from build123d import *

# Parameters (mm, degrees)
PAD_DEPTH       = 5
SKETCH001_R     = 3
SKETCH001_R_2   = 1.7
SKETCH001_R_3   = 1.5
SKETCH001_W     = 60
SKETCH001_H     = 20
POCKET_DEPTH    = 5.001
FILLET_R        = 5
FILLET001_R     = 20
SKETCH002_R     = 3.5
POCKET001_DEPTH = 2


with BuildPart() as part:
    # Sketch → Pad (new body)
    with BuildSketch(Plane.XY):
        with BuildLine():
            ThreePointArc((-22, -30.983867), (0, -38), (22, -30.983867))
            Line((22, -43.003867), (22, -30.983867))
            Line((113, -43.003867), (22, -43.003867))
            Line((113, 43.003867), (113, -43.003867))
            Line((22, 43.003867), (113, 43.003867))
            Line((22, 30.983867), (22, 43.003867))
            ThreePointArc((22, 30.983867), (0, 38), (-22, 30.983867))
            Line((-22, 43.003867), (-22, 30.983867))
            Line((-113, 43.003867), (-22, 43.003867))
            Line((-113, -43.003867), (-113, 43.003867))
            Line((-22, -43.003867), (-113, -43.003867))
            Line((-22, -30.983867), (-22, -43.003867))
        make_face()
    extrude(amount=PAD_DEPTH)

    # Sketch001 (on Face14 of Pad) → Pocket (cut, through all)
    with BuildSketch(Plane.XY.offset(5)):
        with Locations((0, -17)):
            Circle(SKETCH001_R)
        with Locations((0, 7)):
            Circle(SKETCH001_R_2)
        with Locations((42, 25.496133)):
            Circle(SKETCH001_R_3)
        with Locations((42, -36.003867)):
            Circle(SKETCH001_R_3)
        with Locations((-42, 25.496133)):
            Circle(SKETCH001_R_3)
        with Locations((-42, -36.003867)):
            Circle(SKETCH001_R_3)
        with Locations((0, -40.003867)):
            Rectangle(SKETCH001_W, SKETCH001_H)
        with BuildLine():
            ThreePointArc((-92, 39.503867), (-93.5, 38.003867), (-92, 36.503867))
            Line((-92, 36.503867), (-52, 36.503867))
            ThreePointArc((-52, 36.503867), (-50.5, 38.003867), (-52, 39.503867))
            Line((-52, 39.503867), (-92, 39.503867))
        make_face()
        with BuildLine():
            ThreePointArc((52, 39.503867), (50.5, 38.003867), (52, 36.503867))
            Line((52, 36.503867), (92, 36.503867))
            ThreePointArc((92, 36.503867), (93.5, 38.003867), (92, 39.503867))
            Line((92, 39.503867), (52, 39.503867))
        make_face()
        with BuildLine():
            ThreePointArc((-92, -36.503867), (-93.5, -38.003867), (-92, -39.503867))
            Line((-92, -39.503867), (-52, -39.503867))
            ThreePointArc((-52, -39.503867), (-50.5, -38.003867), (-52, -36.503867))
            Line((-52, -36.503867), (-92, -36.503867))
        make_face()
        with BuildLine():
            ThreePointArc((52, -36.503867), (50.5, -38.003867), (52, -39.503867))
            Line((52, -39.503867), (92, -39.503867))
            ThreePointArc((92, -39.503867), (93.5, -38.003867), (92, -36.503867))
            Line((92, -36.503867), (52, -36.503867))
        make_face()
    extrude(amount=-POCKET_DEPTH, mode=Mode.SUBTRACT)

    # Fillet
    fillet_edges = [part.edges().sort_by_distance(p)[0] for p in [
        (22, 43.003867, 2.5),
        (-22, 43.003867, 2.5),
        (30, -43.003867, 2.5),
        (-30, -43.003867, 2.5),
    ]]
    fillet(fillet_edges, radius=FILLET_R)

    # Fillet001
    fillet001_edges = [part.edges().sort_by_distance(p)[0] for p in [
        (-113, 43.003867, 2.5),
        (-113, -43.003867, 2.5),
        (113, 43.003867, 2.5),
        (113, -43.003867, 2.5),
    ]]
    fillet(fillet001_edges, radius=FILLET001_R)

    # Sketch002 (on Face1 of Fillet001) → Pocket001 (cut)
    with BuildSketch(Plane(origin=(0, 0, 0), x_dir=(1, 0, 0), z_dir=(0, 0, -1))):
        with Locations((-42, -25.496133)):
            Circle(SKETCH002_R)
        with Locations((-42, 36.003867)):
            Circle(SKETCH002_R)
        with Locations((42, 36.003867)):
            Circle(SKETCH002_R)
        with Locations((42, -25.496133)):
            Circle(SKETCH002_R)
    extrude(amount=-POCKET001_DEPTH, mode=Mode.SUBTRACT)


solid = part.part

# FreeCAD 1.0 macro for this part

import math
import FreeCAD as App
import Part
import Sketcher


def edges_at(feature, points):
    """Names of the edges that pass closest to the given points."""
    edges = feature.Shape.Edges
    near = lambda p: min(range(len(edges)), key=lambda i: edges[i].distToShape(Part.Vertex(*p))[0])
    return sorted({f"Edge{near(p) + 1}" for p in points})


def add_polygon(sketch, points):
    """Adds a closed chain of lines whose ends are joined by coincident constraints."""
    first, n = sketch.GeometryCount, len(points)
    for a, b in zip(points, points[1:] + points[:1]):
        sketch.addGeometry(Part.LineSegment(App.Vector(*a, 0), App.Vector(*b, 0)), False)
    for i in range(n):
        sketch.addConstraint(Sketcher.Constraint("Coincident", first + i, 2, first + (i + 1) % n, 1))

doc = App.newDocument("Part")
body = doc.addObject("PartDesign::Body", "Body")

sketch1 = body.newObject("Sketcher::SketchObject", "Sketch")
sketch1.AttachmentSupport = (doc.getObject("XY_Plane"), [""])
sketch1.MapMode = "FlatFace"
sketch1.addGeometry([
    Part.ArcOfCircle(Part.Circle(App.Vector(0, 0.000001, 0), App.Vector(0, 0, 1), 38.000001), math.radians(-125.376539), math.radians(-54.623461)),
    Part.LineSegment(App.Vector(22, -30.983867, 0), App.Vector(22, -43.003867, 0)),
    Part.LineSegment(App.Vector(22, -43.003867, 0), App.Vector(113, -43.003867, 0)),
    Part.LineSegment(App.Vector(113, -43.003867, 0), App.Vector(113, 43.003867, 0)),
    Part.LineSegment(App.Vector(113, 43.003867, 0), App.Vector(22, 43.003867, 0)),
    Part.LineSegment(App.Vector(22, 43.003867, 0), App.Vector(22, 30.983867, 0)),
    Part.ArcOfCircle(Part.Circle(App.Vector(0, -0.000001, 0), App.Vector(0, 0, 1), 38.000001), math.radians(54.623461), math.radians(125.376539)),
    Part.LineSegment(App.Vector(-22, 30.983867, 0), App.Vector(-22, 43.003867, 0)),
    Part.LineSegment(App.Vector(-22, 43.003867, 0), App.Vector(-113, 43.003867, 0)),
    Part.LineSegment(App.Vector(-113, 43.003867, 0), App.Vector(-113, -43.003867, 0)),
    Part.LineSegment(App.Vector(-113, -43.003867, 0), App.Vector(-22, -43.003867, 0)),
    Part.LineSegment(App.Vector(-22, -43.003867, 0), App.Vector(-22, -30.983867, 0)),
], False)
sketch1.addConstraint([
    Sketcher.Constraint("Coincident", 0, 2, 1, 1),
    Sketcher.Constraint("Coincident", 1, 2, 2, 1),
    Sketcher.Constraint("Coincident", 2, 2, 3, 1),
    Sketcher.Constraint("Coincident", 3, 2, 4, 1),
    Sketcher.Constraint("Coincident", 4, 2, 5, 1),
    Sketcher.Constraint("Coincident", 5, 2, 6, 1),
    Sketcher.Constraint("Coincident", 6, 2, 7, 1),
    Sketcher.Constraint("Coincident", 7, 2, 8, 1),
    Sketcher.Constraint("Coincident", 8, 2, 9, 1),
    Sketcher.Constraint("Coincident", 9, 2, 10, 1),
    Sketcher.Constraint("Coincident", 10, 2, 11, 1),
    Sketcher.Constraint("Coincident", 11, 2, 0, 1),
    Sketcher.Constraint("Vertical", 1),
    Sketcher.Constraint("Horizontal", 2),
    Sketcher.Constraint("Vertical", 3),
    Sketcher.Constraint("Horizontal", 4),
    Sketcher.Constraint("Vertical", 5),
    Sketcher.Constraint("Vertical", 7),
    Sketcher.Constraint("Horizontal", 8),
    Sketcher.Constraint("Vertical", 9),
    Sketcher.Constraint("Horizontal", 10),
    Sketcher.Constraint("Vertical", 11),
    Sketcher.Constraint("Coincident", 0, 3, -1, 1),
    Sketcher.Constraint("Coincident", 6, 3, -1, 1),
    Sketcher.Constraint("Equal", 0, 6),
    Sketcher.Constraint("Symmetric", 1, 2, 7, 2, -1, 1),
    Sketcher.Constraint("Symmetric", 3, 2, 9, 2, -1, 1),
    Sketcher.Constraint("Symmetric", 4, 2, 7, 2, -2),
    Sketcher.Constraint("Horizontal", 0, 2, 11, 2),
    Sketcher.Constraint("Radius", 0, 38.000001),
    Sketcher.Constraint("DistanceX", 2, 1, 2, 2, 91.0),
    Sketcher.Constraint("DistanceX", -1, 1, 0, 2, 22.0),
    Sketcher.Constraint("DistanceY", 1, 2, 1, 1, 12.02),
])
pad1 = body.newObject("PartDesign::Pad", "Pad")
pad1.Profile = sketch1
pad1.Length = 5

sketch2 = body.newObject("Sketcher::SketchObject", "Sketch001")
sketch2.AttachmentSupport = (doc.getObject("XY_Plane"), [""])
sketch2.MapMode = "FlatFace"
sketch2.AttachmentOffset = App.Placement(App.Vector(0, 0, 5), App.Rotation())
sketch2.addGeometry(Part.Circle(App.Vector(0, -17, 0), App.Vector(0, 0, 1), 3), False)
sketch2.addGeometry(Part.Circle(App.Vector(0, 7, 0), App.Vector(0, 0, 1), 1.7), False)
sketch2.addGeometry(Part.Circle(App.Vector(42, 25.496133, 0), App.Vector(0, 0, 1), 1.5), False)
sketch2.addGeometry(Part.Circle(App.Vector(42, -36.003867, 0), App.Vector(0, 0, 1), 1.5), False)
sketch2.addGeometry(Part.Circle(App.Vector(-42, 25.496133, 0), App.Vector(0, 0, 1), 1.5), False)
sketch2.addGeometry(Part.Circle(App.Vector(-42, -36.003867, 0), App.Vector(0, 0, 1), 1.5), False)
add_polygon(sketch2, [(-30, -30.003867), (-30, -50.003867), (30, -50.003867), (30, -30.003867)])
sketch2.addGeometry(Part.ArcOfCircle(Part.Circle(App.Vector(-92, 38.003867, 0), App.Vector(0, 0, 1), 1.5), math.radians(90), math.radians(270)), False)
sketch2.addGeometry(Part.LineSegment(App.Vector(-92, 36.503867, 0), App.Vector(-52, 36.503867, 0)), False)
sketch2.addGeometry(Part.ArcOfCircle(Part.Circle(App.Vector(-52, 38.003867, 0), App.Vector(0, 0, 1), 1.5), math.radians(-90), math.radians(90)), False)
sketch2.addGeometry(Part.LineSegment(App.Vector(-52, 39.503867, 0), App.Vector(-92, 39.503867, 0)), False)
sketch2.addGeometry(Part.ArcOfCircle(Part.Circle(App.Vector(52, 38.003867, 0), App.Vector(0, 0, 1), 1.5), math.radians(90), math.radians(270)), False)
sketch2.addGeometry(Part.LineSegment(App.Vector(52, 36.503867, 0), App.Vector(92, 36.503867, 0)), False)
sketch2.addGeometry(Part.ArcOfCircle(Part.Circle(App.Vector(92, 38.003867, 0), App.Vector(0, 0, 1), 1.5), math.radians(-90), math.radians(90)), False)
sketch2.addGeometry(Part.LineSegment(App.Vector(92, 39.503867, 0), App.Vector(52, 39.503867, 0)), False)
sketch2.addGeometry(Part.ArcOfCircle(Part.Circle(App.Vector(-92, -38.003867, 0), App.Vector(0, 0, 1), 1.5), math.radians(90), math.radians(270)), False)
sketch2.addGeometry(Part.LineSegment(App.Vector(-92, -39.503867, 0), App.Vector(-52, -39.503867, 0)), False)
sketch2.addGeometry(Part.ArcOfCircle(Part.Circle(App.Vector(-52, -38.003867, 0), App.Vector(0, 0, 1), 1.5), math.radians(-90), math.radians(90)), False)
sketch2.addGeometry(Part.LineSegment(App.Vector(-52, -36.503867, 0), App.Vector(-92, -36.503867, 0)), False)
sketch2.addGeometry(Part.ArcOfCircle(Part.Circle(App.Vector(52, -38.003867, 0), App.Vector(0, 0, 1), 1.5), math.radians(90), math.radians(270)), False)
sketch2.addGeometry(Part.LineSegment(App.Vector(52, -39.503867, 0), App.Vector(92, -39.503867, 0)), False)
sketch2.addGeometry(Part.ArcOfCircle(Part.Circle(App.Vector(92, -38.003867, 0), App.Vector(0, 0, 1), 1.5), math.radians(-90), math.radians(90)), False)
sketch2.addGeometry(Part.LineSegment(App.Vector(92, -36.503867, 0), App.Vector(52, -36.503867, 0)), False)
sketch2.addConstraint([
    Sketcher.Constraint("Tangent", 10, 2, 11, 1),
    Sketcher.Constraint("Tangent", 11, 2, 12, 1),
    Sketcher.Constraint("Tangent", 12, 2, 13, 1),
    Sketcher.Constraint("Tangent", 13, 2, 10, 1),
    Sketcher.Constraint("Tangent", 14, 2, 15, 1),
    Sketcher.Constraint("Tangent", 15, 2, 16, 1),
    Sketcher.Constraint("Tangent", 16, 2, 17, 1),
    Sketcher.Constraint("Tangent", 17, 2, 14, 1),
    Sketcher.Constraint("Tangent", 18, 2, 19, 1),
    Sketcher.Constraint("Tangent", 19, 2, 20, 1),
    Sketcher.Constraint("Tangent", 20, 2, 21, 1),
    Sketcher.Constraint("Tangent", 21, 2, 18, 1),
    Sketcher.Constraint("Tangent", 22, 2, 23, 1),
    Sketcher.Constraint("Tangent", 23, 2, 24, 1),
    Sketcher.Constraint("Tangent", 24, 2, 25, 1),
    Sketcher.Constraint("Tangent", 25, 2, 22, 1),
    Sketcher.Constraint("Vertical", 6),
    Sketcher.Constraint("Horizontal", 7),
    Sketcher.Constraint("Vertical", 8),
    Sketcher.Constraint("Horizontal", 9),
    Sketcher.Constraint("Horizontal", 11),
    Sketcher.Constraint("Horizontal", 13),
    Sketcher.Constraint("Horizontal", 15),
    Sketcher.Constraint("Horizontal", 17),
    Sketcher.Constraint("Horizontal", 19),
    Sketcher.Constraint("Horizontal", 21),
    Sketcher.Constraint("Horizontal", 23),
    Sketcher.Constraint("Horizontal", 25),
    Sketcher.Constraint("Equal", 2, 3),
    Sketcher.Constraint("Equal", 3, 4),
    Sketcher.Constraint("Equal", 4, 5),
    Sketcher.Constraint("Equal", 5, 10),
    Sketcher.Constraint("Equal", 12, 14),
    Sketcher.Constraint("Equal", 16, 18),
    Sketcher.Constraint("Equal", 20, 22),
    Sketcher.Constraint("Symmetric", 16, 3, 18, 3, -1, 1),
    Sketcher.Constraint("Symmetric", 12, 3, 22, 3, -1, 1),
    Sketcher.Constraint("Symmetric", 2, 3, 4, 3, -2),
    Sketcher.Constraint("Symmetric", 3, 3, 5, 3, -2),
    Sketcher.Constraint("Symmetric", 12, 3, 14, 3, -2),
    Sketcher.Constraint("PointOnObject", 0, 3, -2),
    Sketcher.Constraint("PointOnObject", 1, 3, -2),
    Sketcher.Constraint("Vertical", 2, 3, 3, 3),
    Sketcher.Constraint("Vertical", 10, 3, 18, 3),
    Sketcher.Constraint("Vertical", 12, 3, 20, 3),
    Sketcher.Constraint("Vertical", 16, 3, 24, 3),
    Sketcher.Constraint("Diameter", 0, 6.0),
    Sketcher.Constraint("Diameter", 2, 3.0),
    Sketcher.Constraint("Diameter", 1, 3.4),
    Sketcher.Constraint("DistanceX", 7, 1, 7, 2, 60.0),
    Sketcher.Constraint("DistanceX", 11, 1, 11, 2, 40.0),
    Sketcher.Constraint("DistanceY", 6, 2, 6, 1, 20.0),
    Sketcher.Constraint("DistanceY", 0, 3, -1, 1, 17.0),
    Sketcher.Constraint("DistanceY", -1, 1, 1, 3, 7.0),
    Sketcher.Constraint("DistanceX", -1, 1, 2, 3, 42.0),
    Sketcher.Constraint("DistanceX", 10, 3, -1, 1, 92.0),
    Sketcher.Constraint("DistanceX", 6, 2, -1, 1, 30.0),
    Sketcher.Constraint("DistanceY", 18, 3, 5, 3, 2.0),
    Sketcher.Constraint("DistanceY", 6, 2, 5, 3, 14.0),
    Sketcher.Constraint("DistanceY", 3, 3, 2, 3, 61.5),
    Sketcher.Constraint("DistanceY", -1, 1, 2, 3, 25.496133),
])
pocket1 = body.newObject("PartDesign::Pocket", "Pocket")
pocket1.Profile = sketch2
pocket1.Type = "ThroughAll"
doc.recompute()

fillet = body.newObject("PartDesign::Fillet", "Fillet")
fillet.Base = (pocket1, edges_at(pocket1, [
    (22, 43.004, 2.5),
    (-22, 43.004, 2.5),
    (30, -43.004, 2.5),
    (-30, -43.004, 2.5),
]))
fillet.Radius = 5
doc.recompute()

fillet2 = body.newObject("PartDesign::Fillet", "Fillet001")
fillet2.Base = (fillet, edges_at(fillet, [
    (-113, 43.004, 2.5),
    (-113, -43.004, 2.5),
    (113, 43.004, 2.5),
    (113, -43.004, 2.5),
]))
fillet2.Radius = 20

sketch3 = body.newObject("Sketcher::SketchObject", "Sketch002")
sketch3.AttachmentSupport = (doc.getObject("XY_Plane"), [""])
sketch3.MapMode = "FlatFace"
sketch3.addGeometry([
    Part.Circle(App.Vector(-42, 25.496133, 0), App.Vector(0, 0, 1), 3.5),
    Part.Circle(App.Vector(-42, -36.003867, 0), App.Vector(0, 0, 1), 3.5),
    Part.Circle(App.Vector(42, -36.003867, 0), App.Vector(0, 0, 1), 3.5),
    Part.Circle(App.Vector(42, 25.496133, 0), App.Vector(0, 0, 1), 3.5),
], False)
sketch3.addConstraint([
    Sketcher.Constraint("Equal", 0, 1),
    Sketcher.Constraint("Equal", 1, 2),
    Sketcher.Constraint("Equal", 2, 3),
    Sketcher.Constraint("Symmetric", 1, 3, 2, 3, -2),
    Sketcher.Constraint("Symmetric", 0, 3, 3, 3, -2),
    Sketcher.Constraint("Vertical", 0, 3, 1, 3),
    Sketcher.Constraint("Diameter", 0, 7.0),
    Sketcher.Constraint("DistanceX", 0, 3, -1, 1, 42.0),
    Sketcher.Constraint("DistanceY", 1, 3, 0, 3, 61.5),
    Sketcher.Constraint("DistanceY", -1, 1, 0, 3, 25.496133),
])
pocket2 = body.newObject("PartDesign::Pocket", "Pocket001")
pocket2.Profile = sketch3
pocket2.Length = 2
pocket2.Reversed = True

doc.recompute()
